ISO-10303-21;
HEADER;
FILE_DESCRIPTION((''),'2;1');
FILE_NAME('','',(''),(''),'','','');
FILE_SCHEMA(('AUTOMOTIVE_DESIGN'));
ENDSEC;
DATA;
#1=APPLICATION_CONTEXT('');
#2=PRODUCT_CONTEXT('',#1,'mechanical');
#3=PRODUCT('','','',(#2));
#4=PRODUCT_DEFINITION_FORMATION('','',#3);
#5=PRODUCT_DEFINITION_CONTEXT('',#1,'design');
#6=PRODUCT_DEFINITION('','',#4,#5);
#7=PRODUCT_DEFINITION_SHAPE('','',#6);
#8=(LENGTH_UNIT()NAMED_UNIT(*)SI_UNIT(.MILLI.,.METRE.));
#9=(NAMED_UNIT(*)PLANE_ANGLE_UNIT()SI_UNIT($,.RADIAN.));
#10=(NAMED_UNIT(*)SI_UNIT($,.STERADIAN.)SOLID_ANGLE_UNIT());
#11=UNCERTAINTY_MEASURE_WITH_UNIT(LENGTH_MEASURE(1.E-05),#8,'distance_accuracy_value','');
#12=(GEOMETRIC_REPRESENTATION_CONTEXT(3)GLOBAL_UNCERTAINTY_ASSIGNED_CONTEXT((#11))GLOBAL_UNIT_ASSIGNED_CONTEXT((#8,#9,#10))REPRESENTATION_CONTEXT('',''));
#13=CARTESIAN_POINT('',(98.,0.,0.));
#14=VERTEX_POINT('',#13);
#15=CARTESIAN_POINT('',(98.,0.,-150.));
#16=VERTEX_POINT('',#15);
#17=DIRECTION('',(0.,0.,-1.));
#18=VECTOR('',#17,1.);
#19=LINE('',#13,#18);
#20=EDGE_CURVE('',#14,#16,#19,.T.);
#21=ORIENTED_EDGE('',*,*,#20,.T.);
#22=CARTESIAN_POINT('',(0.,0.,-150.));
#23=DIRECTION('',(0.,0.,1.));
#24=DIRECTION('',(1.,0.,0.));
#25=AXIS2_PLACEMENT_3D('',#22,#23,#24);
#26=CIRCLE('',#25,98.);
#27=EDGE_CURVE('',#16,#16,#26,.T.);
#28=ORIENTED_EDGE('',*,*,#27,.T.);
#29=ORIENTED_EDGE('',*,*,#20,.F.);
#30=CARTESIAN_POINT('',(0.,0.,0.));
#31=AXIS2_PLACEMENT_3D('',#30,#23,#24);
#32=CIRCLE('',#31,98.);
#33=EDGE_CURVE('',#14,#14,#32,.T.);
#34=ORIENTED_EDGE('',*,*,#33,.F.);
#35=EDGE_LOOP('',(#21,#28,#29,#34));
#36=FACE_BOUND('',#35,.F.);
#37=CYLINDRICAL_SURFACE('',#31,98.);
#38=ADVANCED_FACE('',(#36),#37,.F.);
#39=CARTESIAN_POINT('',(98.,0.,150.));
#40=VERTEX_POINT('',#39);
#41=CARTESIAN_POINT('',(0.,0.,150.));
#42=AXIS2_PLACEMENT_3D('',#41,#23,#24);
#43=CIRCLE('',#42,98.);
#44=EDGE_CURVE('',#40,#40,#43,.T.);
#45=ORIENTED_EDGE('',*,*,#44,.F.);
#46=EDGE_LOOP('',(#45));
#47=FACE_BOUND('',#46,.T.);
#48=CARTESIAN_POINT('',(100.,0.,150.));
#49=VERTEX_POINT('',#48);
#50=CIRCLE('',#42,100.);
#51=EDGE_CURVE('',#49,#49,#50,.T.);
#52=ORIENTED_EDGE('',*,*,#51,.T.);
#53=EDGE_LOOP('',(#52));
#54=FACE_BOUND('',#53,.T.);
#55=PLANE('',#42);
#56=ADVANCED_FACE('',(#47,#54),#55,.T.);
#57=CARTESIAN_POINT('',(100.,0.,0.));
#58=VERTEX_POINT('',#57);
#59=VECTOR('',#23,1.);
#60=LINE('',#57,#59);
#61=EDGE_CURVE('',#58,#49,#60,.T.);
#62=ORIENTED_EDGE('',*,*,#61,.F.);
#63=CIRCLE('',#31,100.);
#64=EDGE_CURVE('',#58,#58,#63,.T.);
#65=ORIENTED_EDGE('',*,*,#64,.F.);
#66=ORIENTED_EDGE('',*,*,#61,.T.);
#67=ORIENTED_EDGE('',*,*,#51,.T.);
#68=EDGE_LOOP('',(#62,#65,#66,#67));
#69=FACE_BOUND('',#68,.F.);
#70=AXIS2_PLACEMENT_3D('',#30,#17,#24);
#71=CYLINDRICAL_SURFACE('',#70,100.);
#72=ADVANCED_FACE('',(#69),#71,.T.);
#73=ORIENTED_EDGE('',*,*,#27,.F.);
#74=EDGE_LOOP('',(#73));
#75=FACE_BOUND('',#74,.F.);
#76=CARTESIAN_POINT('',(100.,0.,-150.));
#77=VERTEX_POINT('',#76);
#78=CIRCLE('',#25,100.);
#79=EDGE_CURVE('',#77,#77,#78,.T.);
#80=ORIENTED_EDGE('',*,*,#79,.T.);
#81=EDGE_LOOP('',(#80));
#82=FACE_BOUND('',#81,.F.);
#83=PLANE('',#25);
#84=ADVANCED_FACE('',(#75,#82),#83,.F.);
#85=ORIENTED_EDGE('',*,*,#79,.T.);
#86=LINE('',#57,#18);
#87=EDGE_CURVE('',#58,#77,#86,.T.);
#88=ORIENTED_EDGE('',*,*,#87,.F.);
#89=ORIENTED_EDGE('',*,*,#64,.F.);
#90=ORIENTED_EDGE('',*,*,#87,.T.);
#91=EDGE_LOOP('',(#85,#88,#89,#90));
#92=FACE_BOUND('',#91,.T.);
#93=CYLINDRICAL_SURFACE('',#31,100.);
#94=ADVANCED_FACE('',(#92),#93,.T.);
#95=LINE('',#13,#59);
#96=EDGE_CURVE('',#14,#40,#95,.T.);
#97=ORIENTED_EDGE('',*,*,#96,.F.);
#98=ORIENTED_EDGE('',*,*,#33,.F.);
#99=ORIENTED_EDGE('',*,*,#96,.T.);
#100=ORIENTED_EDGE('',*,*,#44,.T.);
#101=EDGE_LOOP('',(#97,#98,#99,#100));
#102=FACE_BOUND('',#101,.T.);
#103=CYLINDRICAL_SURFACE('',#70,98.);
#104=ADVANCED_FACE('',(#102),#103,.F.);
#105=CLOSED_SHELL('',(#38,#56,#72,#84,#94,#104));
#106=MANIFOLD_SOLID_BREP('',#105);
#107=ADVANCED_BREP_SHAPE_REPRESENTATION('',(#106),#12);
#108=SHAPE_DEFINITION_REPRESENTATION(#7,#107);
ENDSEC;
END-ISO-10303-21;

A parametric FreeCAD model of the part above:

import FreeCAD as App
import Part
import Sketcher

V = App.Vector
Q = App.Units.Quantity

doc = App.newDocument("Part")
body = doc.addObject("PartDesign::Body", "Body")

# Sketch on XY plane
sketch1 = doc.addObject("Sketcher::SketchObject", "Sketch")
body.addObject(sketch1)
sketch1.AttachmentSupport = (doc.XY_Plane, [""])
sketch1.MapMode = "FlatFace"
sketch1.addGeometry(Part.Circle(V(0, 0, 0), V(0, 0, 1), 100), False)
sketch1.addGeometry(Part.Circle(V(0, 0, 0), V(0, 0, 1), 98), False)
sketch1.addConstraint(Sketcher.Constraint("Coincident", 0, 3, -1, 1))
sketch1.addConstraint(Sketcher.Constraint("Coincident", 1, 3, -1, 1))
sketch1.addConstraint(Sketcher.Constraint("Diameter", 0, Q("200 mm")))
sketch1.addConstraint(Sketcher.Constraint("Diameter", 1, Q("196 mm")))
pad1 = doc.addObject("PartDesign::Pad", "Pad")
body.addObject(pad1)
pad1.Profile = sketch1
pad1.Length = 300
pad1.Midplane = True

doc.recompute()
